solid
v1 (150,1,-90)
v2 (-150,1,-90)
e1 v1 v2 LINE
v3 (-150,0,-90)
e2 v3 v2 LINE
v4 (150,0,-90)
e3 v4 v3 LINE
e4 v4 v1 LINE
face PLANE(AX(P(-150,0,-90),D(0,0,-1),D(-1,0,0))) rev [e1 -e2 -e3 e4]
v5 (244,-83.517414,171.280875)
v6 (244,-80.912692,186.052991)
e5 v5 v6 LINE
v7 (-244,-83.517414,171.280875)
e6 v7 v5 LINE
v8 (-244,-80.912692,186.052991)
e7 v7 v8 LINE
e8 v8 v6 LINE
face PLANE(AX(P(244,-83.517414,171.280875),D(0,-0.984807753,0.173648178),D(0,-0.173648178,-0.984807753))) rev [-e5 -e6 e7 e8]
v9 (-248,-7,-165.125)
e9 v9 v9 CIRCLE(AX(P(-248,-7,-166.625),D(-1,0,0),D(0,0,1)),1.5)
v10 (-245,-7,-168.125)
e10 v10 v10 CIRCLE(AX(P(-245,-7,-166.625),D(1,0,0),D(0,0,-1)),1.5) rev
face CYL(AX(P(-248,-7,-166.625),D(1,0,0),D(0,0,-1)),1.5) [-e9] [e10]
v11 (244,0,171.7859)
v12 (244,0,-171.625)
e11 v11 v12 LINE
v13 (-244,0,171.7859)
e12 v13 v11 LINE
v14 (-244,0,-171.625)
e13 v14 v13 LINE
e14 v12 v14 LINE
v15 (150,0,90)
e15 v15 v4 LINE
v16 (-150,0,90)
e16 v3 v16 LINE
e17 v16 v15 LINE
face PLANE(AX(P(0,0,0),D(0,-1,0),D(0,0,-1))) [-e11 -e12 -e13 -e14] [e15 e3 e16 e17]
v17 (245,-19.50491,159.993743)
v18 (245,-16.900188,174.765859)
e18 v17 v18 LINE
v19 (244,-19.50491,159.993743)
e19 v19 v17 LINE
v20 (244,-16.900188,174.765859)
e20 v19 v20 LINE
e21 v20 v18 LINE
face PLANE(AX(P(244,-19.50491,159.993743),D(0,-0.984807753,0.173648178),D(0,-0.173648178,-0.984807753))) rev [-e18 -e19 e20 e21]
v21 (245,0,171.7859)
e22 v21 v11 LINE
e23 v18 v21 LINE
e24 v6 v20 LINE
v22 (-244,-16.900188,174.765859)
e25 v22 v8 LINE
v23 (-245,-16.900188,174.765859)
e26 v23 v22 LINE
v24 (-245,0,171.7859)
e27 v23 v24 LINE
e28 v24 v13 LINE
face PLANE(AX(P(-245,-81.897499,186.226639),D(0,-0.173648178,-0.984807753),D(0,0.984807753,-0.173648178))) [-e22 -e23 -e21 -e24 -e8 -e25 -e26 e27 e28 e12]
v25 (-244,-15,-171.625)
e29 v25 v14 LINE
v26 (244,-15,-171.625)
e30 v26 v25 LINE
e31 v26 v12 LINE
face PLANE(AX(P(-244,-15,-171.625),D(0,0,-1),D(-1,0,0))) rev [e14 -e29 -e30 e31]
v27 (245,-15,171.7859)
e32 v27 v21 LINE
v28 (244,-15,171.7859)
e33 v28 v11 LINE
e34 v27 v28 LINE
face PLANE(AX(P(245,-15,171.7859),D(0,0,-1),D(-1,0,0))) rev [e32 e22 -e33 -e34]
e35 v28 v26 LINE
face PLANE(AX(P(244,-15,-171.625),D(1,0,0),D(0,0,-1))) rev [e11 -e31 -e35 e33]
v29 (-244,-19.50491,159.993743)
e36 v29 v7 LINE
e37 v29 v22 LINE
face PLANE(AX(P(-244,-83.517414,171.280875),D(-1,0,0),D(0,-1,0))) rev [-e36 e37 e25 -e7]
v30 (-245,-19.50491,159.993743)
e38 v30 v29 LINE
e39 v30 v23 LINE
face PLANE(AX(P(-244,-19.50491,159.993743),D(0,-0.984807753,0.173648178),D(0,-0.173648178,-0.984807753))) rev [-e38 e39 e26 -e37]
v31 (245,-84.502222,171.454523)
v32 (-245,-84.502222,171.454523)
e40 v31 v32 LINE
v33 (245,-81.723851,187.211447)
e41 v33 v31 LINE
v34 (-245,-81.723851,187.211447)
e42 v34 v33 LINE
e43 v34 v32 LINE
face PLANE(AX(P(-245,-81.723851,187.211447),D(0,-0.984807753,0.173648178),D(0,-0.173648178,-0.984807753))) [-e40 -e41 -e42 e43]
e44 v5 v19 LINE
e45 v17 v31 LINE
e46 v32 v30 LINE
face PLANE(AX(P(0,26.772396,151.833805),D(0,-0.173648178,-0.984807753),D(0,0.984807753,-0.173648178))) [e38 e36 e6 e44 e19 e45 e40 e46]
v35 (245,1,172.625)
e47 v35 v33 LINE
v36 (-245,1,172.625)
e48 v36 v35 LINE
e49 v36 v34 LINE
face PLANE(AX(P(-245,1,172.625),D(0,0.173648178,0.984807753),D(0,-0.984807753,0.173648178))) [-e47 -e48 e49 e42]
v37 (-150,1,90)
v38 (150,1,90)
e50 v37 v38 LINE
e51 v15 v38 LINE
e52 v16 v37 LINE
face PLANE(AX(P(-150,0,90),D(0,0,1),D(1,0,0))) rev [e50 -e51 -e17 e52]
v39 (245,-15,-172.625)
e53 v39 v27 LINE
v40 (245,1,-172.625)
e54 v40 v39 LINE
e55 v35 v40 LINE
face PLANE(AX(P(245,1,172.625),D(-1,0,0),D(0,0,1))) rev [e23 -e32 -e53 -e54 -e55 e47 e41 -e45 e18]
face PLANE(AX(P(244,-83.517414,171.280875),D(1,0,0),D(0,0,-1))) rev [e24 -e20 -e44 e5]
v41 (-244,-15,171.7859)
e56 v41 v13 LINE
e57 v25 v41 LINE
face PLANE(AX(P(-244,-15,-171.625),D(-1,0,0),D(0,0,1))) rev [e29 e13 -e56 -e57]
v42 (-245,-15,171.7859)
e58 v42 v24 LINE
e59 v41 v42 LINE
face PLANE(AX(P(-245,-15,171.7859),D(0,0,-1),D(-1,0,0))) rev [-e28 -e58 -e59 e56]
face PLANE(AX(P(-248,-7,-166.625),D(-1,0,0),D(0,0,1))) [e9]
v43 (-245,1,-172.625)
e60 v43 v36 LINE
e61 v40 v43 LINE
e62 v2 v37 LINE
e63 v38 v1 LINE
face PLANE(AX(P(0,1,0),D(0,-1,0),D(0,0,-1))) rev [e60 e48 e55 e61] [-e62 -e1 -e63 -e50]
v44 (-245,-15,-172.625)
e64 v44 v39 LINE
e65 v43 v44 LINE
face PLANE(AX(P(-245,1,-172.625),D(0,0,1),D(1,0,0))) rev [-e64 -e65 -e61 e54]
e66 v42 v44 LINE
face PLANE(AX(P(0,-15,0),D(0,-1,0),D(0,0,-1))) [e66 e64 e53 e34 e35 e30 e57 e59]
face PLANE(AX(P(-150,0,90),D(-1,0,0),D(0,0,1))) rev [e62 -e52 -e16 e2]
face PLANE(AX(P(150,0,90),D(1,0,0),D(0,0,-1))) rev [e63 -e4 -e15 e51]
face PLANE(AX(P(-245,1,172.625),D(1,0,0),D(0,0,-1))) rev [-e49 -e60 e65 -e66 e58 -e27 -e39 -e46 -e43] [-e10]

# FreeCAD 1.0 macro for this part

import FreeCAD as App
import Part
import Sketcher
Q = App.Units.Quantity


def add_polygon(sketch, points):
    """Adds a closed chain of lines whose ends are joined by coincident constraints."""
    first, n = sketch.GeometryCount, len(points)
    for a, b in zip(points, points[1:] + points[:1]):
        sketch.addGeometry(Part.LineSegment(App.Vector(*a, 0), App.Vector(*b, 0)), False)
    for i in range(n):
        sketch.addConstraint(Sketcher.Constraint("Coincident", first + i, 2, first + (i + 1) % n, 1))

doc = App.newDocument("Part")
body = doc.addObject("PartDesign::Body", "Body")

sketch1 = body.newObject("Sketcher::SketchObject", "Sketch")
sketch1.AttachmentSupport = (doc.getObject("XZ_Plane"), [""])
sketch1.MapMode = "FlatFace"
add_polygon(sketch1, [(-245, -173), (-245, 173), (245, 173), (245, -173)])
sketch1.addConstraint([
    Sketcher.Constraint("Vertical", 0),
    Sketcher.Constraint("Horizontal", 1),
    Sketcher.Constraint("Vertical", 2),
    Sketcher.Constraint("Horizontal", 3),
    Sketcher.Constraint("Symmetric", 0, 2, 2, 2, -1, 1),
    Sketcher.Constraint("DistanceX", 1, 1, 1, 2, Q("490 mm")),
    Sketcher.Constraint("DistanceY", 0, 1, 0, 2, Q("345.25 mm")),
])
pad1 = body.newObject("PartDesign::Pad", "Pad")
pad1.Profile = sketch1
pad1.Length = 1
pad1.Reversed = True

sketch2 = body.newObject("Sketcher::SketchObject", "Sketch001")
sketch2.AttachmentSupport = (doc.getObject("XZ_Plane"), [""])
sketch2.MapMode = "FlatFace"
sketch2.AttachmentOffset = App.Placement(App.Vector(0, 0, -1), App.Rotation())
add_polygon(sketch2, [(-150, -90), (-150, 90), (150, 90), (150, -90)])
sketch2.addConstraint([
    Sketcher.Constraint("Vertical", 0),
    Sketcher.Constraint("Horizontal", 1),
    Sketcher.Constraint("Vertical", 2),
    Sketcher.Constraint("Horizontal", 3),
    Sketcher.Constraint("Symmetric", 0, 2, 2, 2, -1, 1),
    Sketcher.Constraint("DistanceX", 1, 1, 1, 2, Q("300 mm")),
    Sketcher.Constraint("DistanceY", 0, 1, 0, 2, Q("180 mm")),
])
pocket1 = body.newObject("PartDesign::Pocket", "Pocket")
pocket1.Profile = sketch2
pocket1.Type = "ThroughAll"
pocket1.Reversed = True

sketch3 = body.newObject("Sketcher::SketchObject", "Sketch002")
sketch3.AttachmentSupport = (doc.getObject("YZ_Plane"), [""])
sketch3.MapMode = "FlatFace"
sketch3.AttachmentOffset = App.Placement(App.Vector(0, 0, 245), App.Rotation())
add_polygon(sketch3, [(1, 172.6), (-81.7, 187.2), (-81.9, 186.2), (1, 171.6)])
sketch3.addConstraint([
    Sketcher.Constraint("Vertical", 3),
    Sketcher.Constraint("Perpendicular", 0, 1),
    Sketcher.Constraint("Perpendicular", 1, 2),
    Sketcher.Constraint("Angle", 0, Q("170 deg")),
    Sketcher.Constraint("Distance", 0, Q("84 mm")),
    Sketcher.Constraint("Distance", 1, Q("1 mm")),
    Sketcher.Constraint("DistanceX", -1, 1, 2, 2, Q("1 mm")),
    Sketcher.Constraint("DistanceY", -1, 1, 3, 2, Q("172.625 mm")),
])
pad2 = body.newObject("PartDesign::Pad", "Pad001")
pad2.Profile = sketch3
pad2.Length = 490
pad2.Reversed = True

sketch4 = body.newObject("Sketcher::SketchObject", "Sketch003")
sketch4.AttachmentSupport = (doc.getObject("XZ_Plane"), [""])
sketch4.MapMode = "FlatFace"
add_polygon(sketch4, [(-245, 171.8), (-245, -172.6), (245, -172.6), (245, 171.8), (244, 171.8), (244, -171.6), (-244, -171.6), (-244, 171.8)])
sketch4.addConstraint([
    Sketcher.Constraint("Vertical", 0),
    Sketcher.Constraint("Horizontal", 1),
    Sketcher.Constraint("Vertical", 2),
    Sketcher.Constraint("Horizontal", 3),
    Sketcher.Constraint("Vertical", 4),
    Sketcher.Constraint("Horizontal", 5),
    Sketcher.Constraint("Vertical", 6),
    Sketcher.Constraint("Horizontal", 7),
    Sketcher.Constraint("Symmetric", 3, 2, 6, 2, -2),
    Sketcher.Constraint("Equal", 3, 7),
    Sketcher.Constraint("DistanceX", 1, 1, 1, 2, Q("490 mm")),
    Sketcher.Constraint("DistanceX", 3, 2, 3, 1, Q("1 mm")),
    Sketcher.Constraint("DistanceY", 1, 2, 4, 2, Q("1 mm")),
    Sketcher.Constraint("DistanceY", 0, 2, 0, 1, Q("344.4109 mm")),
    Sketcher.Constraint("DistanceY", 0, 2, -1, 1, Q("172.625 mm")),
])
pad3 = body.newObject("PartDesign::Pad", "Pad002")
pad3.Profile = sketch4
pad3.Length = 15

sketch5 = body.newObject("Sketcher::SketchObject", "Sketch004")
sketch5.Placement = App.Placement(App.Vector(0, 29.377119, 166.605922), App.Rotation(App.Vector(-1, 0, 0), App.Vector(0, 0.984807753, -0.173648178), App.Vector(0, -0.173648178, -0.984807753), "ZXY"))
add_polygon(sketch5, [(-244, -112), (-244, -47), (-245, -47), (-245, -113), (245, -113), (245, -47), (244, -47), (244, -112)])
sketch5.addConstraint([
    Sketcher.Constraint("Vertical", 0),
    Sketcher.Constraint("Horizontal", 1),
    Sketcher.Constraint("Vertical", 2),
    Sketcher.Constraint("Horizontal", 3),
    Sketcher.Constraint("Vertical", 4),
    Sketcher.Constraint("Horizontal", 5),
    Sketcher.Constraint("Vertical", 6),
    Sketcher.Constraint("Horizontal", 7),
    Sketcher.Constraint("Symmetric", 1, 2, 4, 2, -2),
    Sketcher.Constraint("Equal", 1, 5),
    Sketcher.Constraint("DistanceX", 1, 2, 1, 1, Q("1 mm")),
    Sketcher.Constraint("DistanceX", 3, 1, 3, 2, Q("490 mm")),
    Sketcher.Constraint("DistanceY", 0, 1, 0, 2, Q("65 mm")),
    Sketcher.Constraint("DistanceY", 2, 2, 2, 1, Q("66 mm")),
    Sketcher.Constraint("DistanceY", 0, 2, -1, 1, Q("46.991209 mm")),
])
pad4 = body.newObject("PartDesign::Pad", "Pad003")
pad4.Profile = sketch5
pad4.Length = 15

sketch6 = body.newObject("Sketcher::SketchObject", "Sketch005")
sketch6.AttachmentSupport = (doc.getObject("YZ_Plane"), [""])
sketch6.MapMode = "FlatFace"
sketch6.AttachmentOffset = App.Placement(App.Vector(0, 0, -245), App.Rotation())
sketch6.addGeometry(Part.Circle(App.Vector(-7, -166.6, 0), App.Vector(0, 0, 1), 1.5), False)
sketch6.addConstraint([
    Sketcher.Constraint("Diameter", 0, Q("3 mm")),
    Sketcher.Constraint("DistanceX", 0, 3, -1, 1, Q("7 mm")),
    Sketcher.Constraint("DistanceY", 0, 3, -1, 1, Q("166.625 mm")),
])
pad5 = body.newObject("PartDesign::Pad", "Pad004")
pad5.Profile = sketch6
pad5.Length = 3
pad5.Reversed = True

doc.recompute()
